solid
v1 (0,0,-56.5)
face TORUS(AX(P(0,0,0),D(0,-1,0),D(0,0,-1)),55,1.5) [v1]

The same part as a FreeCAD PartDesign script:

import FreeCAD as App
import Part
import Sketcher

doc = App.newDocument("Part")
body = doc.addObject("PartDesign::Body", "Body")

sketch1 = body.newObject("Sketcher::SketchObject", "Sketch")
sketch1.AttachmentSupport = (doc.getObject("YZ_Plane"), [""])
sketch1.MapMode = "FlatFace"
sketch1.addGeometry(Part.Circle(App.Vector(0, 55, 0), App.Vector(0, 0, 1), 1.5), False)
sketch1.addConstraint([
    Sketcher.Constraint("PointOnObject", 0, 3, -2),
    Sketcher.Constraint("Diameter", 0, 3.0),
    Sketcher.Constraint("DistanceY", -1, 1, 0, 3, 55.0),
])
revolution = body.newObject("PartDesign::Revolution", "Revolution")
revolution.Profile = sketch1
revolution.ReferenceAxis = (sketch1, ["H_Axis"])
revolution.Angle = 360

doc.recompute()
